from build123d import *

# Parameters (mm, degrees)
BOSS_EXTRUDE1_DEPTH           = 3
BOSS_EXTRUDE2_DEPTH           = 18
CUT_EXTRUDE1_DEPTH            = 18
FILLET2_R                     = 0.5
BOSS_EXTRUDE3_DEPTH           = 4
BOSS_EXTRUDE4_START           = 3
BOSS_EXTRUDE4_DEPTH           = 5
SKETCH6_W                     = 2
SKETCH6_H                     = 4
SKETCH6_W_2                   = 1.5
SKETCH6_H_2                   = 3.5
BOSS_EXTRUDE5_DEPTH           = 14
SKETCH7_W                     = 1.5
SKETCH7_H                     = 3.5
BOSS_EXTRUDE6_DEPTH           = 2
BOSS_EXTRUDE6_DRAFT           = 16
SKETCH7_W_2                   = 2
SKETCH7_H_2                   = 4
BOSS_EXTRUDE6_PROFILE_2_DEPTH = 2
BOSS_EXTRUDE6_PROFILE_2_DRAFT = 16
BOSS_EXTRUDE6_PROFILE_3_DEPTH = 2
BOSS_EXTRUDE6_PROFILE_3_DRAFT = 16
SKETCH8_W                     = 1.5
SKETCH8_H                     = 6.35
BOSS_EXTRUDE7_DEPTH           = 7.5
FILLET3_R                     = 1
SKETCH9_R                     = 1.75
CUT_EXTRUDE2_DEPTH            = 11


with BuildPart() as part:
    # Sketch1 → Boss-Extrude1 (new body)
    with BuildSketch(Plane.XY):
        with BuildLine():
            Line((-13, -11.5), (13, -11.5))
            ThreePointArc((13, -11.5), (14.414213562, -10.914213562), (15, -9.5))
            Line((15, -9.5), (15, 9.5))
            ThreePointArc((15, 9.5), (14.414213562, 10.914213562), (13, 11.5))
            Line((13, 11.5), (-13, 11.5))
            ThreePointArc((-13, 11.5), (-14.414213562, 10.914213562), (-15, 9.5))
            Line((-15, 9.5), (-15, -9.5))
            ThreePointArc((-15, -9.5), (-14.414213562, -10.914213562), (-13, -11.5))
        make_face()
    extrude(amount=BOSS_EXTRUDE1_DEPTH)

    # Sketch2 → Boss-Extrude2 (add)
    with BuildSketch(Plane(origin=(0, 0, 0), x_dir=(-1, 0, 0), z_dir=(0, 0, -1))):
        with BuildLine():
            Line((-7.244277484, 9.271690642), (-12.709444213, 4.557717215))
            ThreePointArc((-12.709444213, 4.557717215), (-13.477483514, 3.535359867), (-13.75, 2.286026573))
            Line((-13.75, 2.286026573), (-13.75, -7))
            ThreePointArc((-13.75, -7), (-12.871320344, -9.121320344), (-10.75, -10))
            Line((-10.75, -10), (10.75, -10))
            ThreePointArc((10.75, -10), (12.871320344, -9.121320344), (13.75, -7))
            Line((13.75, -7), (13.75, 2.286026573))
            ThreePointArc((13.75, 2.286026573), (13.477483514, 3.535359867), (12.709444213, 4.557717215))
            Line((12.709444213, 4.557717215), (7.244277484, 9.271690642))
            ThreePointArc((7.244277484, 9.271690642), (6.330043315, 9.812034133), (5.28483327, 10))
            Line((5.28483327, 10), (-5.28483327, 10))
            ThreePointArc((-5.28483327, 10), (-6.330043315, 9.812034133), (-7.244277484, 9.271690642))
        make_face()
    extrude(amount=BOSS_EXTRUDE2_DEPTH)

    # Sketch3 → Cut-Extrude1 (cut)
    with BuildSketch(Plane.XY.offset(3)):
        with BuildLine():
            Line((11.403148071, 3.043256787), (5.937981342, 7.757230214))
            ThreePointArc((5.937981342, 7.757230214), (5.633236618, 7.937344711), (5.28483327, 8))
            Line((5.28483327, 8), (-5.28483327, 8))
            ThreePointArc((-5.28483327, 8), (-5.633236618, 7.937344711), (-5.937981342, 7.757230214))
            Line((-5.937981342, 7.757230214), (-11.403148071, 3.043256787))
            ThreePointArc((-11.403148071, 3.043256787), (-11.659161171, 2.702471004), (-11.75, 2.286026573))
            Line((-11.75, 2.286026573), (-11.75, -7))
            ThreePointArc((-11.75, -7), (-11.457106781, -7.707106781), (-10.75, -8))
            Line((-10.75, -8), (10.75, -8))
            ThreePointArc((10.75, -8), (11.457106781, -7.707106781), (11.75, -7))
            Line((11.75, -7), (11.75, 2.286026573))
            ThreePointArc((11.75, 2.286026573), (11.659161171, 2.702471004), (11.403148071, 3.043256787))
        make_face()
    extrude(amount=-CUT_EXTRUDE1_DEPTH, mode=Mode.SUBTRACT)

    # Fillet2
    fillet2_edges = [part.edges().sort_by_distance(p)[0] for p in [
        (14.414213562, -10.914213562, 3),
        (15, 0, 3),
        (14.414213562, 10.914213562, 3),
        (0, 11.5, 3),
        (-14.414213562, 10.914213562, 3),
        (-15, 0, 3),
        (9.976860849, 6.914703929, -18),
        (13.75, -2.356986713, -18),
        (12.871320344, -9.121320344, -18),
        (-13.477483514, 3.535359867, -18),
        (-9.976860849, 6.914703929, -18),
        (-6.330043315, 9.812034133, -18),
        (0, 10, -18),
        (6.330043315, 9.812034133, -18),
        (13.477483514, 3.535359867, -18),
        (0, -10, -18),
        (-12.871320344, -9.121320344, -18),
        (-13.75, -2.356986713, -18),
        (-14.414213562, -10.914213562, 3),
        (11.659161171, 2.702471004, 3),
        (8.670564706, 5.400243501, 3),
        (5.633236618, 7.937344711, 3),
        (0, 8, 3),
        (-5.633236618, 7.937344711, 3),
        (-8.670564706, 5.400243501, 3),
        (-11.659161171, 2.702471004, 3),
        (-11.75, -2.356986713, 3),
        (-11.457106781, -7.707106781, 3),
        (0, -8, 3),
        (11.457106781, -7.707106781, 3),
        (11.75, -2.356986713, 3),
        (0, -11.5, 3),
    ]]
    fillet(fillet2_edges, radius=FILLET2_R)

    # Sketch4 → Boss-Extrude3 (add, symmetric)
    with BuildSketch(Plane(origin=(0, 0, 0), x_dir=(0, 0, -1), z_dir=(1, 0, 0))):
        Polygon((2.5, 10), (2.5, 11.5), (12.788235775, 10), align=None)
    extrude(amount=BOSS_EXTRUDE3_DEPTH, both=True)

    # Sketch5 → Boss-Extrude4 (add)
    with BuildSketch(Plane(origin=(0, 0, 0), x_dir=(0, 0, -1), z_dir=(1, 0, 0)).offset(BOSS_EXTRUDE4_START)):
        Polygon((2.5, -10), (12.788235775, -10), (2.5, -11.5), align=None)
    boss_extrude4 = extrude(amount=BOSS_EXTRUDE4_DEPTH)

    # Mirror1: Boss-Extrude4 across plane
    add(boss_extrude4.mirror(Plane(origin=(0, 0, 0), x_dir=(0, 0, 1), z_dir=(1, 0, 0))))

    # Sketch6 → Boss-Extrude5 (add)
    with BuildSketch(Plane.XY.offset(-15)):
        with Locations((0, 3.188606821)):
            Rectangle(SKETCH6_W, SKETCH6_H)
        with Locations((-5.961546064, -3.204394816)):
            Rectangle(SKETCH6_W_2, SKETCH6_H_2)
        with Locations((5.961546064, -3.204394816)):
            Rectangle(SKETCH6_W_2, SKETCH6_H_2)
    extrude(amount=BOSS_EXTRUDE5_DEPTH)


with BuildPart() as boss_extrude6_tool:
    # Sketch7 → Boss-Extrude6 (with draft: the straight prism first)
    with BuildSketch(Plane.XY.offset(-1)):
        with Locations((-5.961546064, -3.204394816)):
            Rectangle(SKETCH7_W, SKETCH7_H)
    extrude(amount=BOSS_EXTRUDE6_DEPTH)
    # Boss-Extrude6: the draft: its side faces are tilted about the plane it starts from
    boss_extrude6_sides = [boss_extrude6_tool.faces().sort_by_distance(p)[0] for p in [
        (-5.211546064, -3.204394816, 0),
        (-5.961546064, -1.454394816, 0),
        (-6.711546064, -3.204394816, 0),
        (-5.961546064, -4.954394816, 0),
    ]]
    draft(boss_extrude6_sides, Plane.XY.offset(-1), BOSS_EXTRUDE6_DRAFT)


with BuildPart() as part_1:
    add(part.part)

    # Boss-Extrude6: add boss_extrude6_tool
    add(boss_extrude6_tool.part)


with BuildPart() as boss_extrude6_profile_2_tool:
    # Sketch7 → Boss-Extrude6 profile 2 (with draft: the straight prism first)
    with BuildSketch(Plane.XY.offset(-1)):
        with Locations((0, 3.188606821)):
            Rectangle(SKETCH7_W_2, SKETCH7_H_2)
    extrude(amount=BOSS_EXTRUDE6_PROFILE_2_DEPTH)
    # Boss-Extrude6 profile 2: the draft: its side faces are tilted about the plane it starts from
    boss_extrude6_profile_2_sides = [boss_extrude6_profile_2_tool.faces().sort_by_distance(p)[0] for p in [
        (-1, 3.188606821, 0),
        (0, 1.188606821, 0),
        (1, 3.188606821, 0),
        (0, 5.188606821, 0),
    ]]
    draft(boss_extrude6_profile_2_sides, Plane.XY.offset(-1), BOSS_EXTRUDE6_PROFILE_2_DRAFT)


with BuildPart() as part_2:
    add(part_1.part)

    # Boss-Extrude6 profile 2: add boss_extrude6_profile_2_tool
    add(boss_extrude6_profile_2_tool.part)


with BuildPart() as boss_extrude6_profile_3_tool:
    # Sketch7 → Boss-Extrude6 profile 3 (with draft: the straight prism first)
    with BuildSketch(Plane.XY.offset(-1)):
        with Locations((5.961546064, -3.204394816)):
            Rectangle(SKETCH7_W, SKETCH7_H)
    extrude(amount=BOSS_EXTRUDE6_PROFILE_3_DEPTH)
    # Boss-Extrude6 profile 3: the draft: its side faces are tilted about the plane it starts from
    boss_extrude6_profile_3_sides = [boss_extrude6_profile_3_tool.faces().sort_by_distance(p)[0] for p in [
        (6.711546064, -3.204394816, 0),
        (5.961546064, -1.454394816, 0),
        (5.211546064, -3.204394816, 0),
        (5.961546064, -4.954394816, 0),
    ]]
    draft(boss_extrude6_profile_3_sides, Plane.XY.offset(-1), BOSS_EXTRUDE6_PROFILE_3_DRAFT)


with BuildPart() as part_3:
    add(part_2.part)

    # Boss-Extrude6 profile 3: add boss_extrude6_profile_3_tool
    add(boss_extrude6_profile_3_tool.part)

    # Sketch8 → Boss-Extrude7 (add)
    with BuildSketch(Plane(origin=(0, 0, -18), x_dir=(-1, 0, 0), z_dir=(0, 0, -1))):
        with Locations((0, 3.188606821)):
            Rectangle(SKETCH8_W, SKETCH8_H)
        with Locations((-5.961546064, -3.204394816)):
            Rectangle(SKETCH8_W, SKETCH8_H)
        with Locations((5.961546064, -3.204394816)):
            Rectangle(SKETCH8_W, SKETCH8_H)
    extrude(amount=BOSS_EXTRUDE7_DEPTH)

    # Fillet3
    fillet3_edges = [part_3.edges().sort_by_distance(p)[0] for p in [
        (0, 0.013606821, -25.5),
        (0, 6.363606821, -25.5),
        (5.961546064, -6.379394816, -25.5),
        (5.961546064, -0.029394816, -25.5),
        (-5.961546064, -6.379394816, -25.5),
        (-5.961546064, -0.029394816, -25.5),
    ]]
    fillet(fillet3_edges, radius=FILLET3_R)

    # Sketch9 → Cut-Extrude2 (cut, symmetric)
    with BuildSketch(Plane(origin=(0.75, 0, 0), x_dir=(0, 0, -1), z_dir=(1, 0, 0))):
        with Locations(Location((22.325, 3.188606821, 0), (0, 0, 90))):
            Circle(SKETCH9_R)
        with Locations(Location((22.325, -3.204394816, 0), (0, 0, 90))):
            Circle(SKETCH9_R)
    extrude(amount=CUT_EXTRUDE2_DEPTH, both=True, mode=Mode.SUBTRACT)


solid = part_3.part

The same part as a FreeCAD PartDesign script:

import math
import FreeCAD as App
import Part
import Sketcher
from FreeCAD import Vector


def edges_at(feature, points):
    """Names of the edges that pass closest to the given points."""
    edges = feature.Shape.Edges
    near = lambda p: min(range(len(edges)), key=lambda i: edges[i].distToShape(Part.Vertex(*p))[0])
    return sorted({f"Edge{near(p) + 1}" for p in points})


def faces_at(feature, points):
    """Names of the faces that lie closest to the given points."""
    faces = feature.Shape.Faces
    near = lambda p: min(range(len(faces)), key=lambda i: faces[i].distToShape(Part.Vertex(*p))[0])
    return sorted({f"Face{near(p) + 1}" for p in points})

doc = App.newDocument("Part")
body = doc.addObject("PartDesign::Body", "Body")

# Sketch on XY plane
sketch1 = doc.addObject("Sketcher::SketchObject", "Sketch")
body.addObject(sketch1)
sketch1.AttachmentSupport = (doc.XY_Plane, [""])
sketch1.MapMode = "FlatFace"
sketch1.addGeometry([
    Part.LineSegment(Vector(-13, -11.5, 0), Vector(13, -11.5, 0)),  # 0
    Part.ArcOfCircle(Part.Circle(Vector(13, -9.5, 0), Vector(0, 0, 1), 2), math.radians(-90), math.radians(0)),  # 1
    Part.LineSegment(Vector(15, -9.5, 0), Vector(15, 9.5, 0)),  # 2
    Part.ArcOfCircle(Part.Circle(Vector(13, 9.5, 0), Vector(0, 0, 1), 2), math.radians(0), math.radians(90)),  # 3
    Part.LineSegment(Vector(13, 11.5, 0), Vector(-13, 11.5, 0)),  # 4
    Part.ArcOfCircle(Part.Circle(Vector(-13, 9.5, 0), Vector(0, 0, 1), 2), math.radians(90), math.radians(180)),  # 5
    Part.LineSegment(Vector(-15, 9.5, 0), Vector(-15, -9.5, 0)),  # 6
    Part.ArcOfCircle(Part.Circle(Vector(-13, -9.5, 0), Vector(0, 0, 1), 2), math.radians(-180), math.radians(-90)),  # 7
], False)
sketch1.addConstraint([
    Sketcher.Constraint("Tangent", 0, 2, 1, 1),
    Sketcher.Constraint("Tangent", 1, 2, 2, 1),
    Sketcher.Constraint("Tangent", 2, 2, 3, 1),
    Sketcher.Constraint("Tangent", 3, 2, 4, 1),
    Sketcher.Constraint("Tangent", 4, 2, 5, 1),
    Sketcher.Constraint("Tangent", 5, 2, 6, 1),
    Sketcher.Constraint("Tangent", 6, 2, 7, 1),
    Sketcher.Constraint("Tangent", 7, 2, 0, 1),
    Sketcher.Constraint("Horizontal", 0),
    Sketcher.Constraint("Vertical", 2),
    Sketcher.Constraint("Horizontal", 4),
    Sketcher.Constraint("Vertical", 6),
    Sketcher.Constraint("Equal", 1, 3),
    Sketcher.Constraint("Equal", 3, 5),
    Sketcher.Constraint("Equal", 5, 7),
    Sketcher.Constraint("Symmetric", 1, 3, 5, 3, -1, 1),
    Sketcher.Constraint("Radius", 1, 2.0),
    Sketcher.Constraint("DistanceX", 0, 1, 0, 2, 26.0),
    Sketcher.Constraint("DistanceY", 2, 1, 2, 2, 19.0),
])
pad1 = doc.addObject("PartDesign::Pad", "Pad")
body.addObject(pad1)
pad1.Profile = sketch1
pad1.Length = 3

# Sketch on XY plane
sketch2 = doc.addObject("Sketcher::SketchObject", "Sketch001")
body.addObject(sketch2)
sketch2.AttachmentSupport = (doc.XY_Plane, [""])
sketch2.MapMode = "FlatFace"
sketch2.addGeometry([
    Part.LineSegment(Vector(7.2, 9.3, 0), Vector(12.7, 4.6, 0)),  # 0
    Part.ArcOfCircle(Part.Circle(Vector(10.8, 2.3, 0), Vector(0, 0, 1), 3), math.radians(0), math.radians(49)),  # 1
    Part.LineSegment(Vector(13.8, 2.3, 0), Vector(13.8, -7, 0)),  # 2
    Part.ArcOfCircle(Part.Circle(Vector(10.8, -7, 0), Vector(0, 0, 1), 3), math.radians(-90), math.radians(0)),  # 3
    Part.LineSegment(Vector(10.8, -10, 0), Vector(-10.8, -10, 0)),  # 4
    Part.ArcOfCircle(Part.Circle(Vector(-10.8, -7, 0), Vector(0, 0, 1), 3), math.radians(180), math.radians(270)),  # 5
    Part.LineSegment(Vector(-13.8, -7, 0), Vector(-13.8, 2.3, 0)),  # 6
    Part.ArcOfCircle(Part.Circle(Vector(-10.8, 2.3, 0), Vector(0, 0, 1), 3), math.radians(131), math.radians(180)),  # 7
    Part.LineSegment(Vector(-12.7, 4.6, 0), Vector(-7.2, 9.3, 0)),  # 8
    Part.ArcOfCircle(Part.Circle(Vector(-5.3, 7, 0), Vector(0, 0, 1), 3), math.radians(90), math.radians(131)),  # 9
    Part.LineSegment(Vector(-5.3, 10, 0), Vector(5.3, 10, 0)),  # 10
    Part.ArcOfCircle(Part.Circle(Vector(5.3, 7, 0), Vector(0, 0, 1), 3), math.radians(49), math.radians(90)),  # 11
], False)
sketch2.addConstraint([
    Sketcher.Constraint("Tangent", 0, 2, 1, 2),
    Sketcher.Constraint("Tangent", 1, 1, 2, 1),
    Sketcher.Constraint("Tangent", 2, 2, 3, 2),
    Sketcher.Constraint("Tangent", 3, 1, 4, 1),
    Sketcher.Constraint("Tangent", 4, 2, 5, 2),
    Sketcher.Constraint("Tangent", 5, 1, 6, 1),
    Sketcher.Constraint("Tangent", 6, 2, 7, 2),
    Sketcher.Constraint("Tangent", 7, 1, 8, 1),
    Sketcher.Constraint("Tangent", 8, 2, 9, 2),
    Sketcher.Constraint("Tangent", 9, 1, 10, 1),
    Sketcher.Constraint("Tangent", 10, 2, 11, 2),
    Sketcher.Constraint("Tangent", 11, 1, 0, 1),
    Sketcher.Constraint("Vertical", 2),
    Sketcher.Constraint("Horizontal", 4),
    Sketcher.Constraint("Vertical", 6),
    Sketcher.Constraint("Horizontal", 10),
    Sketcher.Constraint("Equal", 1, 3),
    Sketcher.Constraint("Equal", 3, 5),
    Sketcher.Constraint("Equal", 5, 7),
    Sketcher.Constraint("Equal", 7, 9),
    Sketcher.Constraint("Equal", 9, 11),
    Sketcher.Constraint("Symmetric", 1, 3, 7, 3, -2),
    Sketcher.Constraint("Horizontal", 0, 2, 7, 1),
    Sketcher.Constraint("Radius", 1, 3.0),
    Sketcher.Constraint("DistanceX", 4, 2, 4, 1, 21.5),
    Sketcher.Constraint("DistanceY", 3, 3, -1, 1, 7.0),
    Sketcher.Constraint("DistanceY", -1, 1, 9, 3, 7.0),
    Sketcher.Constraint("DistanceX", 10, 1, 10, 2, 10.569667),
    Sketcher.Constraint("DistanceY", 2, 2, 2, 1, 9.286027),
])
pad2 = doc.addObject("PartDesign::Pad", "Pad001")
body.addObject(pad2)
pad2.Profile = sketch2
pad2.Length = 18
pad2.Reversed = True

# Sketch on XY plane
sketch3 = doc.addObject("Sketcher::SketchObject", "Sketch002")
body.addObject(sketch3)
sketch3.AttachmentSupport = (doc.XY_Plane, [""])
sketch3.MapMode = "FlatFace"
sketch3.AttachmentOffset = App.Placement(Vector(0, 0, 3), App.Rotation())
sketch3.addGeometry([
    Part.LineSegment(Vector(11.4, 3, 0), Vector(5.9, 7.8, 0)),  # 0
    Part.ArcOfCircle(Part.Circle(Vector(5.3, 7, 0), Vector(0, 0, 1), 1), math.radians(49), math.radians(90)),  # 1
    Part.LineSegment(Vector(5.3, 8, 0), Vector(-5.3, 8, 0)),  # 2
    Part.ArcOfCircle(Part.Circle(Vector(-5.3, 7, 0), Vector(0, 0, 1), 1), math.radians(90), math.radians(131)),  # 3
    Part.LineSegment(Vector(-5.9, 7.8, 0), Vector(-11.4, 3, 0)),  # 4
    Part.ArcOfCircle(Part.Circle(Vector(-10.7, 2.3, 0), Vector(0, 0, 1), 1), math.radians(131), math.radians(180)),  # 5
    Part.LineSegment(Vector(-11.8, 2.3, 0), Vector(-11.8, -7, 0)),  # 6
    Part.ArcOfCircle(Part.Circle(Vector(-10.7, -7, 0), Vector(0, 0, 1), 1), math.radians(-180), math.radians(-90)),  # 7
    Part.LineSegment(Vector(-10.8, -8, 0), Vector(10.8, -8, 0)),  # 8
    Part.ArcOfCircle(Part.Circle(Vector(10.7, -7, 0), Vector(0, 0, 1), 1), math.radians(-90), math.radians(0)),  # 9
    Part.LineSegment(Vector(11.8, -7, 0), Vector(11.8, 2.3, 0)),  # 10
    Part.ArcOfCircle(Part.Circle(Vector(10.7, 2.3, 0), Vector(0, 0, 1), 1), math.radians(0), math.radians(49)),  # 11
], False)
sketch3.addConstraint([
    Sketcher.Constraint("Tangent", 0, 2, 1, 1),
    Sketcher.Constraint("Tangent", 1, 2, 2, 1),
    Sketcher.Constraint("Tangent", 2, 2, 3, 1),
    Sketcher.Constraint("Tangent", 3, 2, 4, 1),
    Sketcher.Constraint("Tangent", 4, 2, 5, 1),
    Sketcher.Constraint("Tangent", 5, 2, 6, 1),
    Sketcher.Constraint("Tangent", 6, 2, 7, 1),
    Sketcher.Constraint("Tangent", 7, 2, 8, 1),
    Sketcher.Constraint("Tangent", 8, 2, 9, 1),
    Sketcher.Constraint("Tangent", 9, 2, 10, 1),
    Sketcher.Constraint("Tangent", 10, 2, 11, 1),
    Sketcher.Constraint("Tangent", 11, 2, 0, 1),
    Sketcher.Constraint("Horizontal", 2),
    Sketcher.Constraint("Vertical", 6),
    Sketcher.Constraint("Horizontal", 8),
    Sketcher.Constraint("Vertical", 10),
    Sketcher.Constraint("Equal", 1, 3),
    Sketcher.Constraint("Equal", 3, 5),
    Sketcher.Constraint("Equal", 5, 7),
    Sketcher.Constraint("Equal", 7, 9),
    Sketcher.Constraint("Equal", 9, 11),
    Sketcher.Constraint("Symmetric", 5, 3, 11, 3, -2),
    Sketcher.Constraint("Horizontal", 0, 2, 3, 2),
    Sketcher.Constraint("Radius", 1, 1.0),
    Sketcher.Constraint("DistanceX", 8, 1, 8, 2, 21.5),
    Sketcher.Constraint("DistanceY", -1, 1, 1, 3, 7.0),
    Sketcher.Constraint("DistanceY", 7, 3, -1, 1, 7.0),
    Sketcher.Constraint("DistanceX", 2, 2, 2, 1, 10.569667),
    Sketcher.Constraint("DistanceY", 6, 2, 6, 1, 9.286027),
])
pocket1 = doc.addObject("PartDesign::Pocket", "Pocket")
body.addObject(pocket1)
pocket1.Profile = sketch3
pocket1.Length = 18
doc.recompute()

fillet = doc.addObject("PartDesign::Fillet", "Fillet")
body.addObject(fillet)
fillet.Base = (pocket1, edges_at(pocket1, [
    (14.414, -10.914, 3),
    (15, 0, 3),
    (14.414, 10.914, 3),
    (0, 11.5, 3),
    (-14.414, 10.914, 3),
    (-15, 0, 3),
    (9.977, 6.915, -18),
    (13.75, -2.357, -18),
    (12.871, -9.121, -18),
    (-13.477, 3.535, -18),
    (-9.977, 6.915, -18),
    (-6.33, 9.812, -18),
    (0, 10, -18),
    (6.33, 9.812, -18),
    (13.477, 3.535, -18),
    (0, -10, -18),
    (-12.871, -9.121, -18),
    (-13.75, -2.357, -18),
    (-14.414, -10.914, 3),
    (11.659, 2.702, 3),
    (8.671, 5.4, 3),
    (5.633, 7.937, 3),
    (0, 8, 3),
    (-5.633, 7.937, 3),
    (-8.671, 5.4, 3),
    (-11.659, 2.702, 3),
    (-11.75, -2.357, 3),
    (-11.457, -7.707, 3),
    (0, -8, 3),
    (11.457, -7.707, 3),
    (11.75, -2.357, 3),
    (0, -11.5, 3),
]))
fillet.Radius = 0.5

# Sketch on YZ plane
sketch4 = doc.addObject("Sketcher::SketchObject", "Sketch003")
body.addObject(sketch4)
sketch4.AttachmentSupport = (doc.YZ_Plane, [""])
sketch4.MapMode = "FlatFace"
sketch4.addGeometry([
    Part.LineSegment(Vector(11.5, -2.5, 0), Vector(10, -2.5, 0)),
    Part.LineSegment(Vector(10, -2.5, 0), Vector(10, -12.8, 0)),
    Part.LineSegment(Vector(10, -12.8, 0), Vector(11.5, -2.5, 0)),
], False)
sketch4.addConstraint([
    Sketcher.Constraint("Coincident", 0, 2, 1, 1),
    Sketcher.Constraint("Coincident", 1, 2, 2, 1),
    Sketcher.Constraint("Coincident", 2, 2, 0, 1),
    Sketcher.Constraint("Horizontal", 0),
    Sketcher.Constraint("Vertical", 1),
    Sketcher.Constraint("DistanceX", 0, 2, 0, 1, 1.5),
    Sketcher.Constraint("DistanceX", -1, 1, 0, 2, 10.0),
    Sketcher.Constraint("DistanceY", 0, 2, -1, 1, 2.5),
    Sketcher.Constraint("Distance", 2, 10.397009),
])
pad3 = doc.addObject("PartDesign::Pad", "Pad002")
body.addObject(pad3)
pad3.Profile = sketch4
pad3.Length = 8
pad3.Midplane = True

# Sketch on YZ plane
sketch5 = doc.addObject("Sketcher::SketchObject", "Sketch004")
body.addObject(sketch5)
sketch5.AttachmentSupport = (doc.YZ_Plane, [""])
sketch5.MapMode = "FlatFace"
sketch5.AttachmentOffset = App.Placement(Vector(0, 0, 3), App.Rotation())
sketch5.addGeometry([
    Part.LineSegment(Vector(-10, -12.8, 0), Vector(-10, -2.5, 0)),
    Part.LineSegment(Vector(-10, -2.5, 0), Vector(-11.5, -2.5, 0)),
    Part.LineSegment(Vector(-11.5, -2.5, 0), Vector(-10, -12.8, 0)),
], False)
sketch5.addConstraint([
    Sketcher.Constraint("Coincident", 0, 2, 1, 1),
    Sketcher.Constraint("Coincident", 1, 2, 2, 1),
    Sketcher.Constraint("Coincident", 2, 2, 0, 1),
    Sketcher.Constraint("Vertical", 0),
    Sketcher.Constraint("Horizontal", 1),
    Sketcher.Constraint("DistanceX", 1, 2, 1, 1, 1.5),
    Sketcher.Constraint("DistanceX", 0, 2, -1, 1, 10.0),
    Sketcher.Constraint("DistanceY", 0, 2, -1, 1, 2.5),
    Sketcher.Constraint("Distance", 2, 10.397009),
])
pad4 = doc.addObject("PartDesign::Pad", "Pad003")
body.addObject(pad4)
pad4.Profile = sketch5
pad4.Length = 5
doc.recompute()

mirrored = doc.addObject("PartDesign::Mirrored", "Mirrored")
body.addObject(mirrored)
mirrored.Originals = [pad4]
mirrored.MirrorPlane = (doc.YZ_Plane, [""])
body.Tip = mirrored

# Sketch on XY plane
sketch6 = doc.addObject("Sketcher::SketchObject", "Sketch005")
body.addObject(sketch6)
sketch6.AttachmentSupport = (doc.XY_Plane, [""])
sketch6.MapMode = "FlatFace"
sketch6.AttachmentOffset = App.Placement(Vector(0, 0, -15), App.Rotation())
sketch6.addGeometry([
    Part.LineSegment(Vector(-1, 5.2, 0), Vector(-1, 1.2, 0)),  # 0
    Part.LineSegment(Vector(-1, 1.2, 0), Vector(1, 1.2, 0)),  # 1
    Part.LineSegment(Vector(1, 1.2, 0), Vector(1, 5.2, 0)),  # 2
    Part.LineSegment(Vector(1, 5.2, 0), Vector(-1, 5.2, 0)),  # 3
    Part.LineSegment(Vector(-6.7, -1.5, 0), Vector(-6.7, -5, 0)),  # 4
    Part.LineSegment(Vector(-6.7, -5, 0), Vector(-5.2, -5, 0)),  # 5
    Part.LineSegment(Vector(-5.2, -5, 0), Vector(-5.2, -1.5, 0)),  # 6
    Part.LineSegment(Vector(-5.2, -1.5, 0), Vector(-6.7, -1.5, 0)),  # 7
    Part.LineSegment(Vector(5.2, -1.5, 0), Vector(5.2, -5, 0)),  # 8
    Part.LineSegment(Vector(5.2, -5, 0), Vector(6.7, -5, 0)),  # 9
    Part.LineSegment(Vector(6.7, -5, 0), Vector(6.7, -1.5, 0)),  # 10
    Part.LineSegment(Vector(6.7, -1.5, 0), Vector(5.2, -1.5, 0)),  # 11
], False)
sketch6.addConstraint([
    Sketcher.Constraint("Coincident", 0, 2, 1, 1),
    Sketcher.Constraint("Coincident", 1, 2, 2, 1),
    Sketcher.Constraint("Coincident", 2, 2, 3, 1),
    Sketcher.Constraint("Coincident", 3, 2, 0, 1),
    Sketcher.Constraint("Coincident", 4, 2, 5, 1),
    Sketcher.Constraint("Coincident", 5, 2, 6, 1),
    Sketcher.Constraint("Coincident", 6, 2, 7, 1),
    Sketcher.Constraint("Coincident", 7, 2, 4, 1),
    Sketcher.Constraint("Coincident", 8, 2, 9, 1),
    Sketcher.Constraint("Coincident", 9, 2, 10, 1),
    Sketcher.Constraint("Coincident", 10, 2, 11, 1),
    Sketcher.Constraint("Coincident", 11, 2, 8, 1),
    Sketcher.Constraint("Vertical", 0),
    Sketcher.Constraint("Horizontal", 1),
    Sketcher.Constraint("Vertical", 2),
    Sketcher.Constraint("Horizontal", 3),
    Sketcher.Constraint("Vertical", 4),
    Sketcher.Constraint("Horizontal", 5),
    Sketcher.Constraint("Vertical", 6),
    Sketcher.Constraint("Horizontal", 7),
    Sketcher.Constraint("Vertical", 8),
    Sketcher.Constraint("Horizontal", 9),
    Sketcher.Constraint("Vertical", 10),
    Sketcher.Constraint("Horizontal", 11),
    Sketcher.Constraint("Symmetric", 5, 2, 8, 2, -2),
    Sketcher.Constraint("Symmetric", 7, 2, 10, 2, -2),
    Sketcher.Constraint("DistanceX", 1, 1, 1, 2, 2.0),
    Sketcher.Constraint("DistanceY", 0, 2, 0, 1, 4.0),
    Sketcher.Constraint("DistanceX", 5, 1, 5, 2, 1.5),
    Sketcher.Constraint("DistanceY", 4, 2, 4, 1, 3.5),
    Sketcher.Constraint("DistanceX", 0, 2, -1, 1, 1.0),
    Sketcher.Constraint("DistanceY", 4, 2, 0, 2, 6.143002),
    Sketcher.Constraint("DistanceY", -1, 1, 0, 2, 1.188607),
    Sketcher.Constraint("DistanceX", 4, 2, -1, 1, 6.711546),
])
pad5 = doc.addObject("PartDesign::Pad", "Pad004")
body.addObject(pad5)
pad5.Profile = sketch6
pad5.Length = 14
body2 = doc.addObject("PartDesign::Body", "Body001")

# Sketch on XY plane
sketch7 = doc.addObject("Sketcher::SketchObject", "Sketch006")
body2.addObject(sketch7)
sketch7.AttachmentSupport = (doc.getObject("XY_Plane001"), [""])
sketch7.MapMode = "FlatFace"
sketch7.AttachmentOffset = App.Placement(Vector(0, 0, -1), App.Rotation())
sketch7.addGeometry([
    Part.LineSegment(Vector(-6.7, -1.5, 0), Vector(-6.7, -5, 0)),
    Part.LineSegment(Vector(-6.7, -5, 0), Vector(-5.2, -5, 0)),
    Part.LineSegment(Vector(-5.2, -5, 0), Vector(-5.2, -1.5, 0)),
    Part.LineSegment(Vector(-5.2, -1.5, 0), Vector(-6.7, -1.5, 0)),
], False)
sketch7.addConstraint([
    Sketcher.Constraint("Coincident", 0, 2, 1, 1),
    Sketcher.Constraint("Coincident", 1, 2, 2, 1),
    Sketcher.Constraint("Coincident", 2, 2, 3, 1),
    Sketcher.Constraint("Coincident", 3, 2, 0, 1),
    Sketcher.Constraint("Vertical", 0),
    Sketcher.Constraint("Horizontal", 1),
    Sketcher.Constraint("Vertical", 2),
    Sketcher.Constraint("Horizontal", 3),
    Sketcher.Constraint("DistanceX", 1, 1, 1, 2, 1.5),
    Sketcher.Constraint("DistanceY", 0, 2, 0, 1, 3.5),
    Sketcher.Constraint("DistanceX", 0, 2, -1, 1, 6.711546),
    Sketcher.Constraint("DistanceY", 0, 2, -1, 1, 4.954395),
])
pad6 = doc.addObject("PartDesign::Pad", "Pad005")
body2.addObject(pad6)
pad6.Profile = sketch7
pad6.Length = 2
doc.recompute()

datumplane = doc.addObject("PartDesign::Plane", "DatumPlane")
body2.addObject(datumplane)
datumplane.AttachmentSupport = (doc.getObject("XY_Plane001"), [""])
datumplane.MapMode = "FlatFace"
datumplane.AttachmentOffset = App.Placement(Vector(0, 0, -1), App.Rotation())
draft = doc.addObject("PartDesign::Draft", "Draft")
body2.addObject(draft)
draft.Base = (pad6, faces_at(pad6, [
    (-5.212, -3.204, 0),
    (-5.962, -1.454, 0),
    (-6.712, -3.204, 0),
    (-5.962, -4.954, 0),
]))
draft.NeutralPlane = (datumplane, [""])
draft.Angle = 16
draft.Reversed = False
doc.recompute()

boolean = doc.addObject("PartDesign::Boolean", "Boolean")
body.addObject(boolean)
boolean.Type = "Fuse"
boolean.addObjects([body2])
body3 = doc.addObject("PartDesign::Body", "Body002")

# Sketch on XY plane
sketch8 = doc.addObject("Sketcher::SketchObject", "Sketch007")
body3.addObject(sketch8)
sketch8.AttachmentSupport = (doc.getObject("XY_Plane002"), [""])
sketch8.MapMode = "FlatFace"
sketch8.AttachmentOffset = App.Placement(Vector(0, 0, -1), App.Rotation())
sketch8.addGeometry([
    Part.LineSegment(Vector(-1, 5.2, 0), Vector(-1, 1.2, 0)),
    Part.LineSegment(Vector(-1, 1.2, 0), Vector(1, 1.2, 0)),
    Part.LineSegment(Vector(1, 1.2, 0), Vector(1, 5.2, 0)),
    Part.LineSegment(Vector(1, 5.2, 0), Vector(-1, 5.2, 0)),
], False)
sketch8.addConstraint([
    Sketcher.Constraint("Coincident", 0, 2, 1, 1),
    Sketcher.Constraint("Coincident", 1, 2, 2, 1),
    Sketcher.Constraint("Coincident", 2, 2, 3, 1),
    Sketcher.Constraint("Coincident", 3, 2, 0, 1),
    Sketcher.Constraint("Vertical", 0),
    Sketcher.Constraint("Horizontal", 1),
    Sketcher.Constraint("Vertical", 2),
    Sketcher.Constraint("Horizontal", 3),
    Sketcher.Constraint("DistanceX", 1, 1, 1, 2, 2.0),
    Sketcher.Constraint("DistanceY", 0, 2, 0, 1, 4.0),
    Sketcher.Constraint("DistanceX", 0, 2, -1, 1, 1.0),
    Sketcher.Constraint("DistanceY", -1, 1, 0, 2, 1.188607),
])
pad7 = doc.addObject("PartDesign::Pad", "Pad006")
body3.addObject(pad7)
pad7.Profile = sketch8
pad7.Length = 2
doc.recompute()

datumplane2 = doc.addObject("PartDesign::Plane", "DatumPlane001")
body3.addObject(datumplane2)
datumplane2.AttachmentSupport = (doc.getObject("XY_Plane002"), [""])
datumplane2.MapMode = "FlatFace"
datumplane2.AttachmentOffset = App.Placement(Vector(0, 0, -1), App.Rotation())
draft2 = doc.addObject("PartDesign::Draft", "Draft001")
body3.addObject(draft2)
draft2.Base = (pad7, faces_at(pad7, [
    (-1, 3.189, 0),
    (0, 1.189, 0),
    (1, 3.189, 0),
    (0, 5.189, 0),
]))
draft2.NeutralPlane = (datumplane2, [""])
draft2.Angle = 16
draft2.Reversed = False
doc.recompute()

boolean2 = doc.addObject("PartDesign::Boolean", "Boolean001")
body.addObject(boolean2)
boolean2.Type = "Fuse"
boolean2.addObjects([body3])
body4 = doc.addObject("PartDesign::Body", "Body003")

# Sketch on XY plane
sketch9 = doc.addObject("Sketcher::SketchObject", "Sketch008")
body4.addObject(sketch9)
sketch9.AttachmentSupport = (doc.getObject("XY_Plane003"), [""])
sketch9.MapMode = "FlatFace"
sketch9.AttachmentOffset = App.Placement(Vector(0, 0, -1), App.Rotation())
sketch9.addGeometry([
    Part.LineSegment(Vector(5.2, -1.5, 0), Vector(5.2, -5, 0)),
    Part.LineSegment(Vector(5.2, -5, 0), Vector(6.7, -5, 0)),
    Part.LineSegment(Vector(6.7, -5, 0), Vector(6.7, -1.5, 0)),
    Part.LineSegment(Vector(6.7, -1.5, 0), Vector(5.2, -1.5, 0)),
], False)
sketch9.addConstraint([
    Sketcher.Constraint("Coincident", 0, 2, 1, 1),
    Sketcher.Constraint("Coincident", 1, 2, 2, 1),
    Sketcher.Constraint("Coincident", 2, 2, 3, 1),
    Sketcher.Constraint("Coincident", 3, 2, 0, 1),
    Sketcher.Constraint("Vertical", 0),
    Sketcher.Constraint("Horizontal", 1),
    Sketcher.Constraint("Vertical", 2),
    Sketcher.Constraint("Horizontal", 3),
    Sketcher.Constraint("DistanceX", 1, 1, 1, 2, 1.5),
    Sketcher.Constraint("DistanceY", 0, 2, 0, 1, 3.5),
    Sketcher.Constraint("DistanceX", -1, 1, 0, 2, 5.211546),
    Sketcher.Constraint("DistanceY", 0, 2, -1, 1, 4.954395),
])
pad8 = doc.addObject("PartDesign::Pad", "Pad007")
body4.addObject(pad8)
pad8.Profile = sketch9
pad8.Length = 2
doc.recompute()

datumplane3 = doc.addObject("PartDesign::Plane", "DatumPlane002")
body4.addObject(datumplane3)
datumplane3.AttachmentSupport = (doc.getObject("XY_Plane003"), [""])
datumplane3.MapMode = "FlatFace"
datumplane3.AttachmentOffset = App.Placement(Vector(0, 0, -1), App.Rotation())
draft3 = doc.addObject("PartDesign::Draft", "Draft002")
body4.addObject(draft3)
draft3.Base = (pad8, faces_at(pad8, [
    (6.712, -3.204, 0),
    (5.962, -1.454, 0),
    (5.212, -3.204, 0),
    (5.962, -4.954, 0),
]))
draft3.NeutralPlane = (datumplane3, [""])
draft3.Angle = 16
draft3.Reversed = False
doc.recompute()

boolean3 = doc.addObject("PartDesign::Boolean", "Boolean002")
body.addObject(boolean3)
boolean3.Type = "Fuse"
boolean3.addObjects([body4])

# Sketch on XY plane
sketch10 = doc.addObject("Sketcher::SketchObject", "Sketch009")
body.addObject(sketch10)
sketch10.AttachmentSupport = (doc.XY_Plane, [""])
sketch10.MapMode = "FlatFace"
sketch10.AttachmentOffset = App.Placement(Vector(0, 0, -18), App.Rotation())
sketch10.addGeometry([
    Part.LineSegment(Vector(0.8, 6.4, 0), Vector(0.8, 0, 0)),  # 0
    Part.LineSegment(Vector(0.8, 0, 0), Vector(-0.8, 0, 0)),  # 1
    Part.LineSegment(Vector(-0.8, 0, 0), Vector(-0.8, 6.4, 0)),  # 2
    Part.LineSegment(Vector(-0.8, 6.4, 0), Vector(0.8, 6.4, 0)),  # 3
    Part.LineSegment(Vector(6.7, 0, 0), Vector(6.7, -6.4, 0)),  # 4
    Part.LineSegment(Vector(6.7, -6.4, 0), Vector(5.2, -6.4, 0)),  # 5
    Part.LineSegment(Vector(5.2, -6.4, 0), Vector(5.2, 0, 0)),  # 6
    Part.LineSegment(Vector(5.2, 0, 0), Vector(6.7, 0, 0)),  # 7
    Part.LineSegment(Vector(-5.2, 0, 0), Vector(-5.2, -6.4, 0)),  # 8
    Part.LineSegment(Vector(-5.2, -6.4, 0), Vector(-6.7, -6.4, 0)),  # 9
    Part.LineSegment(Vector(-6.7, -6.4, 0), Vector(-6.7, 0, 0)),  # 10
    Part.LineSegment(Vector(-6.7, 0, 0), Vector(-5.2, 0, 0)),  # 11
], False)
sketch10.addConstraint([
    Sketcher.Constraint("Coincident", 0, 2, 1, 1),
    Sketcher.Constraint("Coincident", 1, 2, 2, 1),
    Sketcher.Constraint("Coincident", 2, 2, 3, 1),
    Sketcher.Constraint("Coincident", 3, 2, 0, 1),
    Sketcher.Constraint("Coincident", 4, 2, 5, 1),
    Sketcher.Constraint("Coincident", 5, 2, 6, 1),
    Sketcher.Constraint("Coincident", 6, 2, 7, 1),
    Sketcher.Constraint("Coincident", 7, 2, 4, 1),
    Sketcher.Constraint("Coincident", 8, 2, 9, 1),
    Sketcher.Constraint("Coincident", 9, 2, 10, 1),
    Sketcher.Constraint("Coincident", 10, 2, 11, 1),
    Sketcher.Constraint("Coincident", 11, 2, 8, 1),
    Sketcher.Constraint("Vertical", 0),
    Sketcher.Constraint("Horizontal", 1),
    Sketcher.Constraint("Vertical", 2),
    Sketcher.Constraint("Horizontal", 3),
    Sketcher.Constraint("Vertical", 4),
    Sketcher.Constraint("Horizontal", 5),
    Sketcher.Constraint("Vertical", 6),
    Sketcher.Constraint("Horizontal", 7),
    Sketcher.Constraint("Vertical", 8),
    Sketcher.Constraint("Horizontal", 9),
    Sketcher.Constraint("Vertical", 10),
    Sketcher.Constraint("Horizontal", 11),
    Sketcher.Constraint("Symmetric", 5, 2, 8, 2, -2),
    Sketcher.Constraint("Symmetric", 7, 2, 10, 2, -2),
    Sketcher.Constraint("Equal", 3, 5),
    Sketcher.Constraint("Equal", 2, 4),
    Sketcher.Constraint("DistanceX", 1, 2, 1, 1, 1.5),
    Sketcher.Constraint("DistanceY", 0, 2, 0, 1, 6.35),
    Sketcher.Constraint("DistanceX", -1, 1, 0, 2, 0.75),
    Sketcher.Constraint("DistanceY", 4, 2, 0, 2, 6.393002),
    Sketcher.Constraint("DistanceY", -1, 1, 0, 2, 0.013607),
    Sketcher.Constraint("DistanceX", -1, 1, 4, 2, 6.711546),
])
pad9 = doc.addObject("PartDesign::Pad", "Pad008")
body.addObject(pad9)
pad9.Profile = sketch10
pad9.Length = 7.5
pad9.Reversed = True
doc.recompute()

fillet2 = doc.addObject("PartDesign::Fillet", "Fillet001")
body.addObject(fillet2)
fillet2.Base = (pad9, edges_at(pad9, [
    (0, 0.014, -25.5),
    (0, 6.364, -25.5),
    (5.962, -6.379, -25.5),
    (5.962, -0.029, -25.5),
    (-5.962, -6.379, -25.5),
    (-5.962, -0.029, -25.5),
]))
fillet2.Radius = 1

# Sketch on YZ plane
sketch11 = doc.addObject("Sketcher::SketchObject", "Sketch010")
body.addObject(sketch11)
sketch11.AttachmentSupport = (doc.YZ_Plane, [""])
sketch11.MapMode = "FlatFace"
sketch11.AttachmentOffset = App.Placement(Vector(0, 0, 0.75), App.Rotation())
sketch11.addGeometry([
    Part.Circle(Vector(3.2, -22.3, 0), Vector(0, 0, 1), 1.8),
    Part.Circle(Vector(-3.2, -22.3, 0), Vector(0, 0, 1), 1.8),
], False)
sketch11.addConstraint([
    Sketcher.Constraint("Equal", 0, 1),
    Sketcher.Constraint("Horizontal", 0, 3, 1, 3),
    Sketcher.Constraint("Diameter", 0, 3.5),
    Sketcher.Constraint("DistanceY", 0, 3, -1, 1, 22.325),
    Sketcher.Constraint("DistanceX", 1, 3, 0, 3, 6.393002),
    Sketcher.Constraint("DistanceX", -1, 1, 0, 3, 3.188607),
])
pocket2 = doc.addObject("PartDesign::Pocket", "Pocket001")
body.addObject(pocket2)
pocket2.Profile = sketch11
pocket2.Length = 22
pocket2.Midplane = True

doc.recompute()
